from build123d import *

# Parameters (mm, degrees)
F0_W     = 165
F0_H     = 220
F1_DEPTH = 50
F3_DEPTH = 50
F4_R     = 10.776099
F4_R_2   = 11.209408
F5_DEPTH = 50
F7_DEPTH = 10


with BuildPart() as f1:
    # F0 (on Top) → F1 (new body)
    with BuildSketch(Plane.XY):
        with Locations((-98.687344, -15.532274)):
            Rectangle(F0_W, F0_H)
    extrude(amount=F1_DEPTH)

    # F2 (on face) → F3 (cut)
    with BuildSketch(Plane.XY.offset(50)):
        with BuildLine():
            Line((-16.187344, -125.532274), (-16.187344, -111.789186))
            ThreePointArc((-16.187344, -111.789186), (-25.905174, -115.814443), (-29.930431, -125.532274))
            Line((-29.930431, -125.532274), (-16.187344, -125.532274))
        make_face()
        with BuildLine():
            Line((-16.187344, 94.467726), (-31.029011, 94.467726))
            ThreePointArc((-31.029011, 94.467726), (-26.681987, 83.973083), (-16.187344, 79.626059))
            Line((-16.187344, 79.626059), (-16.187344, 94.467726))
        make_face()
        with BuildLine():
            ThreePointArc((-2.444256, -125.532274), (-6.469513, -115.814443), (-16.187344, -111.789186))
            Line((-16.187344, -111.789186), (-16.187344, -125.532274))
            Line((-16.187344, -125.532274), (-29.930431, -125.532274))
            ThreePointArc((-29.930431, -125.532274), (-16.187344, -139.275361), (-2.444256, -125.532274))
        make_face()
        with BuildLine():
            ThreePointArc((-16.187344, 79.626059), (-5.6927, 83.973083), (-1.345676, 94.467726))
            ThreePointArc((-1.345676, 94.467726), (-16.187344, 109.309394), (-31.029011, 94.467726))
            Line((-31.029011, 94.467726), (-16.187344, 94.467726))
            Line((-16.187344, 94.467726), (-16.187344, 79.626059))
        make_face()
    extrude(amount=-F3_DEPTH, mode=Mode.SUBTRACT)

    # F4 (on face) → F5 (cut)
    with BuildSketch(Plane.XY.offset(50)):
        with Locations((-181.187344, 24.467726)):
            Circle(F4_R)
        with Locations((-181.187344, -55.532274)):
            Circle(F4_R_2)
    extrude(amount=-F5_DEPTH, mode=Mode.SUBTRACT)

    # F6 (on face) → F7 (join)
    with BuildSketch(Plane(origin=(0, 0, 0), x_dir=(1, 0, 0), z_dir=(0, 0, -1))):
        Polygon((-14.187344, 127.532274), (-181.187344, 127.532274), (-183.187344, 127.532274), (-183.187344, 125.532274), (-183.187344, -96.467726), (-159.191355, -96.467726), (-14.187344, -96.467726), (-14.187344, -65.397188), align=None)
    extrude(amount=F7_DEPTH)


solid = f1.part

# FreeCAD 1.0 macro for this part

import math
import FreeCAD as App
import Part
import Sketcher
Q = App.Units.Quantity


def add_polygon(sketch, points):
    """Adds a closed chain of lines whose ends are joined by coincident constraints."""
    first, n = sketch.GeometryCount, len(points)
    for a, b in zip(points, points[1:] + points[:1]):
        sketch.addGeometry(Part.LineSegment(App.Vector(*a, 0), App.Vector(*b, 0)), False)
    for i in range(n):
        sketch.addConstraint(Sketcher.Constraint("Coincident", first + i, 2, first + (i + 1) % n, 1))

doc = App.newDocument("Part")
body = doc.addObject("PartDesign::Body", "Body")

# Sketch on XY plane
sketch1 = body.newObject("Sketcher::SketchObject", "Sketch")
sketch1.AttachmentSupport = (doc.getObject("XY_Plane"), [""])
sketch1.MapMode = "FlatFace"
add_polygon(sketch1, [(-181, 94), (-181, -126), (-16, -126), (-16, 94)])  # lines 0-3
sketch1.addConstraint([
    Sketcher.Constraint("Vertical", 0),
    Sketcher.Constraint("Horizontal", 1),
    Sketcher.Constraint("Vertical", 2),
    Sketcher.Constraint("Horizontal", 3),
    Sketcher.Constraint("DistanceX", 1, 1, 1, 2, Q("165 mm")),
    Sketcher.Constraint("DistanceY", 0, 2, 0, 1, Q("220 mm")),
    Sketcher.Constraint("DistanceX", 0, 2, -1, 1, Q("181.187344 mm")),
    Sketcher.Constraint("DistanceY", 0, 2, -1, 1, Q("125.532274 mm")),
])
pad1 = body.newObject("PartDesign::Pad", "Pad")
pad1.Profile = sketch1
pad1.Length = 50

# Sketch on XY plane
sketch2 = body.newObject("Sketcher::SketchObject", "Sketch001")
sketch2.AttachmentSupport = (doc.getObject("XY_Plane"), [""])
sketch2.MapMode = "FlatFace"
sketch2.AttachmentOffset = App.Placement(App.Vector(0, 0, 50), App.Rotation())
sketch2.addGeometry([
    Part.ArcOfCircle(Part.Circle(App.Vector(-16, -126, 0), App.Vector(0, 0, 1), 14), math.radians(90), math.radians(180)),  # 0
    Part.ArcOfCircle(Part.Circle(App.Vector(-16, -126, 0), App.Vector(0, 0, 1), 14), math.radians(-180), math.radians(0)),  # 1
    Part.ArcOfCircle(Part.Circle(App.Vector(-16, -126, 0), App.Vector(0, 0, 1), 14), math.radians(0), math.radians(90)),  # 2
    Part.ArcOfCircle(Part.Circle(App.Vector(-16, 94, 0), App.Vector(0, 0, 1), 15), math.radians(-180), math.radians(-90)),  # 3
    Part.ArcOfCircle(Part.Circle(App.Vector(-16, 94, 0), App.Vector(0, 0, 1), 15), math.radians(-90), math.radians(0)),  # 4
    Part.ArcOfCircle(Part.Circle(App.Vector(-16, 94, 0), App.Vector(0, 0, 1), 15), math.radians(0), math.radians(180)),  # 5
], False)
sketch2.addConstraint([
    Sketcher.Constraint("Tangent", 0, 2, 1, 1),
    Sketcher.Constraint("Tangent", 1, 2, 2, 1),
    Sketcher.Constraint("Tangent", 2, 2, 0, 1),
    Sketcher.Constraint("Tangent", 3, 2, 4, 1),
    Sketcher.Constraint("Tangent", 4, 2, 5, 1),
    Sketcher.Constraint("Tangent", 5, 2, 3, 1),
    Sketcher.Constraint("Horizontal", 2, 3, 0, 2),
    Sketcher.Constraint("Horizontal", 0, 2, 1, 2),
    Sketcher.Constraint("Horizontal", 5, 3, 4, 2),
    Sketcher.Constraint("Horizontal", 4, 2, 5, 2),
    Sketcher.Constraint("Vertical", 2, 3, 3, 3),
    Sketcher.Constraint("Vertical", 5, 3, 2, 2),
    Sketcher.Constraint("Vertical", 2, 2, 3, 2),
    Sketcher.Constraint("DistanceY", 0, 3, 3, 3, Q("220 mm")),
    Sketcher.Constraint("Radius", 3, Q("14.841668 mm")),
    Sketcher.Constraint("Radius", 0, Q("13.743087 mm")),
    Sketcher.Constraint("DistanceX", 0, 2, -1, 1, Q("29.930431 mm")),
    Sketcher.Constraint("DistanceY", -1, 1, 3, 2, Q("79.626059 mm")),
])
pocket1 = body.newObject("PartDesign::Pocket", "Pocket")
pocket1.Profile = sketch2
pocket1.Length = 50

# Sketch on XY plane
sketch3 = body.newObject("Sketcher::SketchObject", "Sketch002")
sketch3.AttachmentSupport = (doc.getObject("XY_Plane"), [""])
sketch3.MapMode = "FlatFace"
sketch3.AttachmentOffset = App.Placement(App.Vector(0, 0, 50), App.Rotation())
sketch3.addGeometry([
    Part.Circle(App.Vector(-181, 24, 0), App.Vector(0, 0, 1), 11),
    Part.Circle(App.Vector(-181, -56, 0), App.Vector(0, 0, 1), 11),
], False)
sketch3.addConstraint([
    Sketcher.Constraint("Vertical", 0, 3, 1, 3),
    Sketcher.Constraint("DistanceY", 1, 3, 0, 3, Q("80 mm")),
    Sketcher.Constraint("Diameter", 0, Q("21.552198 mm")),
    Sketcher.Constraint("Diameter", 1, Q("22.418816 mm")),
    Sketcher.Constraint("DistanceX", 0, 3, -1, 1, Q("181.187344 mm")),
    Sketcher.Constraint("DistanceY", -1, 1, 0, 3, Q("24.467726 mm")),
])
pocket2 = body.newObject("PartDesign::Pocket", "Pocket001")
pocket2.Profile = sketch3
pocket2.Length = 50

# Sketch on XY plane
sketch4 = body.newObject("Sketcher::SketchObject", "Sketch003")
sketch4.AttachmentSupport = (doc.getObject("XY_Plane"), [""])
sketch4.MapMode = "FlatFace"
add_polygon(sketch4, [(-14, -128), (-183, -128), (-183, 96), (-14, 96)])  # lines 0-3
sketch4.addConstraint([
    Sketcher.Constraint("Horizontal", 0),
    Sketcher.Constraint("Vertical", 1),
    Sketcher.Constraint("Horizontal", 2),
    Sketcher.Constraint("Vertical", 3),
    Sketcher.Constraint("DistanceX", 0, 2, 0, 1, Q("169 mm")),
    Sketcher.Constraint("DistanceY", 1, 1, 1, 2, Q("224 mm")),
    Sketcher.Constraint("DistanceX", 0, 2, -1, 1, Q("183.187344 mm")),
    Sketcher.Constraint("DistanceY", 0, 2, -1, 1, Q("127.532274 mm")),
])
pad2 = body.newObject("PartDesign::Pad", "Pad001")
pad2.Profile = sketch4
pad2.Length = 10
pad2.Reversed = True

doc.recompute()
